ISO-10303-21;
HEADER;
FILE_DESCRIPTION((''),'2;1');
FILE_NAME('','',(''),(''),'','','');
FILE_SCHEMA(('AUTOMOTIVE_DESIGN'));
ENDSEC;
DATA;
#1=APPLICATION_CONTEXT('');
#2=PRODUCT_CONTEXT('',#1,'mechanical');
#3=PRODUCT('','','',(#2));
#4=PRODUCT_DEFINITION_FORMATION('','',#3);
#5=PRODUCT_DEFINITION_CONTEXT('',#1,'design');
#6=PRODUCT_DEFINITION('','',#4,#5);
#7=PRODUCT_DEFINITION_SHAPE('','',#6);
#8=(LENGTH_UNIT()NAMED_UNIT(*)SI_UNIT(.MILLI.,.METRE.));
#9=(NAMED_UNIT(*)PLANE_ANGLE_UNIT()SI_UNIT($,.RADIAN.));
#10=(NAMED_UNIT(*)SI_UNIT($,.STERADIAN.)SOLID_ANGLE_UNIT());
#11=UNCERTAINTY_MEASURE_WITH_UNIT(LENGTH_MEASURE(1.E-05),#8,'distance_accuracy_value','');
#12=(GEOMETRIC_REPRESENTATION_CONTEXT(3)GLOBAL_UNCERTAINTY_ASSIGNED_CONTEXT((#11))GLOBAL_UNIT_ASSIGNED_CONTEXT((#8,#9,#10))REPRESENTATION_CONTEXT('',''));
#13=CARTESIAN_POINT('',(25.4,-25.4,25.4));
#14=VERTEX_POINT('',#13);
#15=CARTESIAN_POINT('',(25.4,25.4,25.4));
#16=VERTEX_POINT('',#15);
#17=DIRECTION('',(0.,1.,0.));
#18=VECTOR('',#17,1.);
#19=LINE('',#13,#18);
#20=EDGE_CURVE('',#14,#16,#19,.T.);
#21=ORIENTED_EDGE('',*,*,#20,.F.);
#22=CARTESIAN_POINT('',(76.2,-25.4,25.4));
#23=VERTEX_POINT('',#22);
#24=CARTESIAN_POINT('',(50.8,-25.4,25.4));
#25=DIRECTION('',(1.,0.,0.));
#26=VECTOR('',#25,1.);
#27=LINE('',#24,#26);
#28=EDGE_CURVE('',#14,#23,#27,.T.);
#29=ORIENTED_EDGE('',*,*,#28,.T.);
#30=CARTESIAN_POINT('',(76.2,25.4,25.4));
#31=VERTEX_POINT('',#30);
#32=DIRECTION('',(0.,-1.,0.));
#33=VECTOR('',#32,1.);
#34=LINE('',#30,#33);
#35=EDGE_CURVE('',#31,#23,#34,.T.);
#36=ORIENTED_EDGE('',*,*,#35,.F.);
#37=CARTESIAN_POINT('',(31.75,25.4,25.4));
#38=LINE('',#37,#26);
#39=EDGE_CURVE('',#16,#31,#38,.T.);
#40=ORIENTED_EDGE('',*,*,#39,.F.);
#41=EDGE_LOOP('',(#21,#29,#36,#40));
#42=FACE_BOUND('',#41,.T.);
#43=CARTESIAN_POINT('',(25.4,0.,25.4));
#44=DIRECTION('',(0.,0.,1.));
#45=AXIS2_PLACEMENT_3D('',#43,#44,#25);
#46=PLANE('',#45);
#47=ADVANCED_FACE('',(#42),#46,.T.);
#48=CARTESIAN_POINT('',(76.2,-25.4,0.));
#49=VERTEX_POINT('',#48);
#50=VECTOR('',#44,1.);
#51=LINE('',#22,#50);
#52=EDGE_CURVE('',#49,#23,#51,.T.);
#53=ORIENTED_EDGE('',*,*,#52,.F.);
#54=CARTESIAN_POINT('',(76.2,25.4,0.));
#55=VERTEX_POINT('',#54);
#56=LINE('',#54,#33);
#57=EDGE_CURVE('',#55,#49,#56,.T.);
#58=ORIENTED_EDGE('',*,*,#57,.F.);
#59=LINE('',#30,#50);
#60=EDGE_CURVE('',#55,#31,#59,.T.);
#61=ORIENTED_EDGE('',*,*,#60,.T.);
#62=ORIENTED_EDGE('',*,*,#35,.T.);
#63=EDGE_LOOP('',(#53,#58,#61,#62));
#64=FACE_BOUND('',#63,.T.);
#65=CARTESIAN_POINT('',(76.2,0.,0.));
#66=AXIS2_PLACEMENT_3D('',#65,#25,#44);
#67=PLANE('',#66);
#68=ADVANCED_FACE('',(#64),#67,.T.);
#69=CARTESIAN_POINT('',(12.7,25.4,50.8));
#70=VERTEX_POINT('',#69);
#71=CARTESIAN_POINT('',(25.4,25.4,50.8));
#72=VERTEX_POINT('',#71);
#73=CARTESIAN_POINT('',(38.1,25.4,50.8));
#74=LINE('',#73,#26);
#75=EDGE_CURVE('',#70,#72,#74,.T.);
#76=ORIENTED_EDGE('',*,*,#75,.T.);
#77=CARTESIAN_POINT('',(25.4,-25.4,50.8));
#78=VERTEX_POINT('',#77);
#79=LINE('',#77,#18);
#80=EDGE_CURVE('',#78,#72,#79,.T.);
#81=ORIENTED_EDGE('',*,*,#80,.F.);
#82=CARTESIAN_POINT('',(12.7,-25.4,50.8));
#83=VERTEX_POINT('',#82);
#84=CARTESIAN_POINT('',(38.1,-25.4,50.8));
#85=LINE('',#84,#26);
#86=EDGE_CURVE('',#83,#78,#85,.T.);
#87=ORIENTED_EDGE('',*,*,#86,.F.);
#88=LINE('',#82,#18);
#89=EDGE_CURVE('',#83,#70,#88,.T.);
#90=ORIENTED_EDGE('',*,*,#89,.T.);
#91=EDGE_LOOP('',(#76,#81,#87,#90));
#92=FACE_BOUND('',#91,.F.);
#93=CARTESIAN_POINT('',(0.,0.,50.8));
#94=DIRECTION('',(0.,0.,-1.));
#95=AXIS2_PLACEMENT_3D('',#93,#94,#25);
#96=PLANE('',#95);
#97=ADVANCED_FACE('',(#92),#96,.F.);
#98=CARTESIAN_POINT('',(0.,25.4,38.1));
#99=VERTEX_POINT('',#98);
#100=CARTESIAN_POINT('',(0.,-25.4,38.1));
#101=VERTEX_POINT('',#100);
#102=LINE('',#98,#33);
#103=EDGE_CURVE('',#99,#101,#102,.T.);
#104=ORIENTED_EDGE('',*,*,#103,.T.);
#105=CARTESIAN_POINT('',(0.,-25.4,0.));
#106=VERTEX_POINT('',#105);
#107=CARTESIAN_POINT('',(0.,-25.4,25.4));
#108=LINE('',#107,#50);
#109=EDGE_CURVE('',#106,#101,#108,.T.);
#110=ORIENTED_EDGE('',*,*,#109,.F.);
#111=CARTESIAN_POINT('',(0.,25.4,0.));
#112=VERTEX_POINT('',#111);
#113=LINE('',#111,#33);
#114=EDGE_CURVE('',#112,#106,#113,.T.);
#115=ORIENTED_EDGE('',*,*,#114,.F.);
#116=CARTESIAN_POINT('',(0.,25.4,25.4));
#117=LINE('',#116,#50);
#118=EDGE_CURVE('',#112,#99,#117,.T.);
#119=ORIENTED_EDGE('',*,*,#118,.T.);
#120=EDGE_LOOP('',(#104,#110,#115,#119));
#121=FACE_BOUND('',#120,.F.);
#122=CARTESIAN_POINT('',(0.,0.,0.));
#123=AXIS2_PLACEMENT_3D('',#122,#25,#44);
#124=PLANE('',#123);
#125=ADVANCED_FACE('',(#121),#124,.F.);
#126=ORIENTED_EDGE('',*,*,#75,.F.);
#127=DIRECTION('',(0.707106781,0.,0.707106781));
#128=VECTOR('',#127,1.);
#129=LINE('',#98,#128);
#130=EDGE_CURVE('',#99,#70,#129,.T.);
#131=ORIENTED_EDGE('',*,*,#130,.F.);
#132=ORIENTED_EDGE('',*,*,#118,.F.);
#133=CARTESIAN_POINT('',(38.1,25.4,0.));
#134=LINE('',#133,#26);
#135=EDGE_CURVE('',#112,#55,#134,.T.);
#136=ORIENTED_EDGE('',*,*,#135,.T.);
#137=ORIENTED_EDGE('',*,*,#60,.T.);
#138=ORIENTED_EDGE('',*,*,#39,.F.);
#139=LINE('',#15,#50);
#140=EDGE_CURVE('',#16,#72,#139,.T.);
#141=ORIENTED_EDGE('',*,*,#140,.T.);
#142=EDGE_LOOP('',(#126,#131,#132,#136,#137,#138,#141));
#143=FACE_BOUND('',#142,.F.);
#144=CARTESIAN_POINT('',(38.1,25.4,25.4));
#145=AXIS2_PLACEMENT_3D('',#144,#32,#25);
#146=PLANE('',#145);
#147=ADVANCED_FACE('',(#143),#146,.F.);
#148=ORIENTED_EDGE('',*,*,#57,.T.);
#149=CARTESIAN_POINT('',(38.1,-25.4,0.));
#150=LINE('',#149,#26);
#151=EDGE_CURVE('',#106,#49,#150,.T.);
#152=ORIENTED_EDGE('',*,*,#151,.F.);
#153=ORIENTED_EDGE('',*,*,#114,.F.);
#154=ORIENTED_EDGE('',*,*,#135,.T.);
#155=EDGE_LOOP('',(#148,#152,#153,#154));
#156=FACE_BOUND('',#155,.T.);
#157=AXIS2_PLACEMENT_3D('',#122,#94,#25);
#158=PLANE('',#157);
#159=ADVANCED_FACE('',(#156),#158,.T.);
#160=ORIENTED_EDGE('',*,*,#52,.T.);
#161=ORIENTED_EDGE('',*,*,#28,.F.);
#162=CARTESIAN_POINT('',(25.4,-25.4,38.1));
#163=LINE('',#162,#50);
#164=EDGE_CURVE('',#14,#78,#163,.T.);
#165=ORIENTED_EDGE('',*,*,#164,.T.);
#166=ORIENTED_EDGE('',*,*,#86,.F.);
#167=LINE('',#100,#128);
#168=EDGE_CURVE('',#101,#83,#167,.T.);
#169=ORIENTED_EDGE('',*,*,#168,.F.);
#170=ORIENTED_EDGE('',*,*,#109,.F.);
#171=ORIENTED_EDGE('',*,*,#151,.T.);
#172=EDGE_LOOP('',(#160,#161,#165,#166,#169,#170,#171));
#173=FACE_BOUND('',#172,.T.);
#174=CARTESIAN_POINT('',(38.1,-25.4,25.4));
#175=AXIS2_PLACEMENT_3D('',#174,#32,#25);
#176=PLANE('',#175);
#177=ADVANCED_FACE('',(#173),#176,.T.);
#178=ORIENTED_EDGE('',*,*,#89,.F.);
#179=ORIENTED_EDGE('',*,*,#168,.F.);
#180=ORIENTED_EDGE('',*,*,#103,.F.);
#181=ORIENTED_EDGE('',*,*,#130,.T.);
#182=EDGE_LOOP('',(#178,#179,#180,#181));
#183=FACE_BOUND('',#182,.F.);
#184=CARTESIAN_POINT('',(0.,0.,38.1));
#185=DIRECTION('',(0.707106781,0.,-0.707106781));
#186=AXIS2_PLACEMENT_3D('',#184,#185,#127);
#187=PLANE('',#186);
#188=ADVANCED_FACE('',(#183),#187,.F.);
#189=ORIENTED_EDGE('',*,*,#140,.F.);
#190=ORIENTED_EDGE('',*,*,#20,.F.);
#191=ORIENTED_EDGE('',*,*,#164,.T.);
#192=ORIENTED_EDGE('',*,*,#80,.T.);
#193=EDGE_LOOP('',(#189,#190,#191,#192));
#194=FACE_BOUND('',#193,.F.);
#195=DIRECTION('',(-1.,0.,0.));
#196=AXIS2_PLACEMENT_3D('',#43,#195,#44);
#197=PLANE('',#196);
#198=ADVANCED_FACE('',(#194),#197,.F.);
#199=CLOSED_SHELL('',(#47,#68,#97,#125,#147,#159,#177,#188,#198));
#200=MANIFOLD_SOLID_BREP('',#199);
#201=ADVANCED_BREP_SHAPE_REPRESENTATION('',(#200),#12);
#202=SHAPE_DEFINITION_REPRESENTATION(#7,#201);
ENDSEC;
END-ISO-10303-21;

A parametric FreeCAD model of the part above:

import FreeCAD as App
import Part
import Sketcher
Q = App.Units.Quantity

doc = App.newDocument("Part")
body = doc.addObject("PartDesign::Body", "Body")

# Sketch on XZ plane
sketch1 = doc.addObject("Sketcher::SketchObject", "Sketch")
body.addObject(sketch1)
sketch1.AttachmentSupport = (doc.XZ_Plane, [""])
sketch1.MapMode = "FlatFace"
sketch1.addGeometry(Part.LineSegment(App.Vector(0, 50.8, 0), App.Vector(0, 0, 0)), False)
sketch1.addGeometry(Part.LineSegment(App.Vector(0, 0, 0), App.Vector(76.2, 0, 0)), False)
sketch1.addGeometry(Part.LineSegment(App.Vector(76.2, 0, 0), App.Vector(76.2, 50.8, 0)), False)
sketch1.addGeometry(Part.LineSegment(App.Vector(76.2, 50.8, 0), App.Vector(0, 50.8, 0)), False)
sketch1.addConstraint(Sketcher.Constraint("Coincident", 0, 2, 1, 1))
sketch1.addConstraint(Sketcher.Constraint("Coincident", 1, 2, 2, 1))
sketch1.addConstraint(Sketcher.Constraint("Coincident", 2, 2, 3, 1))
sketch1.addConstraint(Sketcher.Constraint("Coincident", 3, 2, 0, 1))
sketch1.addConstraint(Sketcher.Constraint("Vertical", 0))
sketch1.addConstraint(Sketcher.Constraint("Horizontal", 1))
sketch1.addConstraint(Sketcher.Constraint("Vertical", 2))
sketch1.addConstraint(Sketcher.Constraint("Horizontal", 3))
sketch1.addConstraint(Sketcher.Constraint("Coincident", 0, 2, -1, 1))
sketch1.addConstraint(Sketcher.Constraint("DistanceX", 1, 1, 1, 2, Q("3 in")))
sketch1.addConstraint(Sketcher.Constraint("DistanceY", 0, 2, 0, 1, Q("2 in")))
pad1 = doc.addObject("PartDesign::Pad", "Pad")
body.addObject(pad1)
pad1.Profile = sketch1
pad1.Length = Q("2 in")
pad1.Midplane = True

# Sketch on XZ plane
sketch2 = doc.addObject("Sketcher::SketchObject", "Sketch001")
body.addObject(sketch2)
sketch2.AttachmentSupport = (doc.XZ_Plane, [""])
sketch2.MapMode = "FlatFace"
sketch2.addGeometry(Part.LineSegment(App.Vector(0, 50.8, 0), App.Vector(0, 38.1, 0)), False)
sketch2.addGeometry(Part.LineSegment(App.Vector(0, 38.1, 0), App.Vector(12.7, 50.8, 0)), False)
sketch2.addGeometry(Part.LineSegment(App.Vector(12.7, 50.8, 0), App.Vector(0, 50.8, 0)), False)
sketch2.addConstraint(Sketcher.Constraint("Coincident", 0, 2, 1, 1))
sketch2.addConstraint(Sketcher.Constraint("Coincident", 1, 2, 2, 1))
sketch2.addConstraint(Sketcher.Constraint("Coincident", 2, 2, 0, 1))
sketch2.addConstraint(Sketcher.Constraint("Vertical", 0))
sketch2.addConstraint(Sketcher.Constraint("Horizontal", 2))
sketch2.addConstraint(Sketcher.Constraint("PointOnObject", 0, 2, -2))
sketch2.addConstraint(Sketcher.Constraint("Equal", 2, 0))
sketch2.addConstraint(Sketcher.Constraint("DistanceX", 2, 2, 2, 1, Q("0.5 in")))
sketch2.addConstraint(Sketcher.Constraint("DistanceY", -1, 1, 1, 2, Q("2 in")))
pocket1 = doc.addObject("PartDesign::Pocket", "Pocket")
body.addObject(pocket1)
pocket1.Profile = sketch2
pocket1.Length = Q("2 in")
pocket1.Midplane = True

# Sketch on XZ plane
sketch3 = doc.addObject("Sketcher::SketchObject", "Sketch002")
body.addObject(sketch3)
sketch3.AttachmentSupport = (doc.XZ_Plane, [""])
sketch3.MapMode = "FlatFace"
sketch3.addGeometry(Part.LineSegment(App.Vector(25.4, 50.8, 0), App.Vector(25.4, 25.4, 0)), False)
sketch3.addGeometry(Part.LineSegment(App.Vector(25.4, 25.4, 0), App.Vector(76.2, 25.4, 0)), False)
sketch3.addGeometry(Part.LineSegment(App.Vector(76.2, 25.4, 0), App.Vector(76.2, 50.8, 0)), False)
sketch3.addGeometry(Part.LineSegment(App.Vector(76.2, 50.8, 0), App.Vector(25.4, 50.8, 0)), False)
sketch3.addConstraint(Sketcher.Constraint("Coincident", 0, 2, 1, 1))
sketch3.addConstraint(Sketcher.Constraint("Coincident", 1, 2, 2, 1))
sketch3.addConstraint(Sketcher.Constraint("Coincident", 2, 2, 3, 1))
sketch3.addConstraint(Sketcher.Constraint("Coincident", 3, 2, 0, 1))
sketch3.addConstraint(Sketcher.Constraint("Vertical", 0))
sketch3.addConstraint(Sketcher.Constraint("Horizontal", 1))
sketch3.addConstraint(Sketcher.Constraint("Vertical", 2))
sketch3.addConstraint(Sketcher.Constraint("Horizontal", 3))
sketch3.addConstraint(Sketcher.Constraint("DistanceX", 1, 1, 1, 2, Q("2 in")))
sketch3.addConstraint(Sketcher.Constraint("DistanceY", 0, 2, 0, 1, Q("1 in")))
sketch3.addConstraint(Sketcher.Constraint("DistanceX", -1, 1, 0, 2, Q("1 in")))
sketch3.addConstraint(Sketcher.Constraint("DistanceY", -1, 1, 0, 2, Q("1 in")))
pocket2 = doc.addObject("PartDesign::Pocket", "Pocket001")
body.addObject(pocket2)
pocket2.Profile = sketch3
pocket2.Type = "ThroughAll"
pocket2.Midplane = True

doc.recompute()
